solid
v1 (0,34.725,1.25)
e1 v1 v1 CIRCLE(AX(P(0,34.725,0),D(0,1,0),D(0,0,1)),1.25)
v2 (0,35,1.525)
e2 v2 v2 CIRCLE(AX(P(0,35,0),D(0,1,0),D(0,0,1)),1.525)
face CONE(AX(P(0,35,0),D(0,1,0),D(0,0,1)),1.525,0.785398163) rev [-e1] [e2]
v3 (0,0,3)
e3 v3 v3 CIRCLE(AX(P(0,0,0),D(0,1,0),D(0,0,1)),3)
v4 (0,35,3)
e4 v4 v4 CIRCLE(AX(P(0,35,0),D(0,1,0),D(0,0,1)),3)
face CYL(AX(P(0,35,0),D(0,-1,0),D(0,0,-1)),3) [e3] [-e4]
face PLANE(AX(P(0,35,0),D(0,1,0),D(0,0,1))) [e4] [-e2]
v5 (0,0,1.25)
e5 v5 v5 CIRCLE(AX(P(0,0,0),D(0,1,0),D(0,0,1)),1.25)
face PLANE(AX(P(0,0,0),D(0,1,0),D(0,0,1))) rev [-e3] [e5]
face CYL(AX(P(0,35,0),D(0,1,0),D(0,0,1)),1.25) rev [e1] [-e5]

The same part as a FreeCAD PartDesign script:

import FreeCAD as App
import Part
import Sketcher
from FreeCAD import Vector
Q = App.Units.Quantity

doc = App.newDocument("Part")
body = doc.addObject("PartDesign::Body", "Body")

# Sketch on XZ plane
sketch1 = doc.addObject("Sketcher::SketchObject", "Sketch")
body.addObject(sketch1)
sketch1.AttachmentSupport = (doc.XZ_Plane, [""])
sketch1.MapMode = "FlatFace"
sketch1.addGeometry(Part.Circle(Vector(0, 0, 0), Vector(0, 0, 1), 3), False)
sketch1.addConstraint([
    Sketcher.Constraint("Coincident", 0, 3, -1, 1),
    Sketcher.Constraint("Diameter", 0, Q("6 mm")),
])
pad1 = doc.addObject("PartDesign::Pad", "Pad")
body.addObject(pad1)
pad1.Profile = sketch1
pad1.Length = 35
pad1.Reversed = True

# Sketch on XZ plane
sketch2 = doc.addObject("Sketcher::SketchObject", "Sketch001")
body.addObject(sketch2)
sketch2.AttachmentSupport = (doc.XZ_Plane, [""])
sketch2.MapMode = "FlatFace"
sketch2.AttachmentOffset = App.Placement(Vector(0, 0, -35), App.Rotation())
sketch2.addGeometry(Part.Circle(Vector(0, 0, 0), Vector(0, 0, 1), 1.2), False)
sketch2.addConstraint([
    Sketcher.Constraint("Coincident", 0, 3, -1, 1),
    Sketcher.Constraint("Diameter", 0, Q("2.5 mm")),
])
doc.recompute()
hole = doc.addObject("PartDesign::Hole", "Hole")
body.addObject(hole)
hole.Profile = sketch2
hole.ThreadType = "None"
hole.Diameter = 2.5
hole.DepthType = "ThroughAll"
hole.HoleCutType = "Countersink"
hole.HoleCutDiameter = 3.05
hole.HoleCutCountersinkAngle = 90
hole.Reversed = True

doc.recompute()
